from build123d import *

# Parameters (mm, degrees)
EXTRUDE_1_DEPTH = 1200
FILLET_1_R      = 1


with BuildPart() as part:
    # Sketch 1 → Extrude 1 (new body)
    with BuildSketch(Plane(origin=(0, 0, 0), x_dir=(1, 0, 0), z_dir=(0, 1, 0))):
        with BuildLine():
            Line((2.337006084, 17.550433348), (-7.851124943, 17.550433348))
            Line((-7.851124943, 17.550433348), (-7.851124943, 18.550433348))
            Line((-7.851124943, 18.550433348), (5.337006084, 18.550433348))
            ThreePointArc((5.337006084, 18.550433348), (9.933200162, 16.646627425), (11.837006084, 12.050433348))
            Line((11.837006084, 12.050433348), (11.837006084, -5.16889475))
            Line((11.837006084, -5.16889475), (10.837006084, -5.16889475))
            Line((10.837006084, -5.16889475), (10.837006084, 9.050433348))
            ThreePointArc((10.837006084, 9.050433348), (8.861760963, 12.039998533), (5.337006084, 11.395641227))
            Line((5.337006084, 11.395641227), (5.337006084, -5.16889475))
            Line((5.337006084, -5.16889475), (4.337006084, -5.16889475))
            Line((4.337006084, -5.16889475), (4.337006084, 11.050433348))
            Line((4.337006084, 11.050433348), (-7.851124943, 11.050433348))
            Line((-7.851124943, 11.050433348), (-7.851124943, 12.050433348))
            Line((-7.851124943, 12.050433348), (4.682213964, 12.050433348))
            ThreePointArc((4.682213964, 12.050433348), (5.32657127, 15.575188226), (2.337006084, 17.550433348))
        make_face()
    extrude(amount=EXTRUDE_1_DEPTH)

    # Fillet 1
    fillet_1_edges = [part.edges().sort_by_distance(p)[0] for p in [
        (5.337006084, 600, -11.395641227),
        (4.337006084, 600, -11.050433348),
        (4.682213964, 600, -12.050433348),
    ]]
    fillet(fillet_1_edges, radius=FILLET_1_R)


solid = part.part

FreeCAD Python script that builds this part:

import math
import FreeCAD as App
import Part
import Sketcher

V = App.Vector
Q = App.Units.Quantity


def edges_at(feature, points):
    """Names of the edges that pass closest to the given points."""
    edges = feature.Shape.Edges
    near = lambda p: min(range(len(edges)), key=lambda i: edges[i].distToShape(Part.Vertex(*p))[0])
    return sorted({f"Edge{near(p) + 1}" for p in points})

doc = App.newDocument("Part")
body = doc.addObject("PartDesign::Body", "Body")

sketch1 = body.newObject("Sketcher::SketchObject", "Sketch")
sketch1.AttachmentSupport = (doc.getObject("XZ_Plane"), [""])
sketch1.MapMode = "FlatFace"
sketch1.addGeometry(Part.LineSegment(V(-7.9, -17.6, 0), V(2.3, -17.6, 0)), False)
sketch1.addGeometry(Part.ArcOfCircle(Part.Circle(V(2.3, -14.3, 0), V(0, 0, 1), 3.2), math.radians(-90), math.radians(44)), False)
sketch1.addGeometry(Part.LineSegment(V(4.7, -12.1, 0), V(-7.9, -12.1, 0)), False)
sketch1.addGeometry(Part.LineSegment(V(-7.9, -12.1, 0), V(-7.9, -11.1, 0)), False)
sketch1.addGeometry(Part.LineSegment(V(-7.9, -11.1, 0), V(4.3, -11.1, 0)), False)
sketch1.addGeometry(Part.LineSegment(V(4.3, -11.1, 0), V(4.3, 5.2, 0)), False)
sketch1.addGeometry(Part.LineSegment(V(4.3, 5.2, 0), V(5.3, 5.2, 0)), False)
sketch1.addGeometry(Part.LineSegment(V(5.3, 5.2, 0), V(5.3, -11.4, 0)), False)
sketch1.addGeometry(Part.ArcOfCircle(Part.Circle(V(7.6, -9.1, 0), V(0, 0, 1), 3.2), math.radians(-134), math.radians(0)), False)
sketch1.addGeometry(Part.LineSegment(V(10.8, -9.1, 0), V(10.8, 5.2, 0)), False)
sketch1.addGeometry(Part.LineSegment(V(10.8, 5.2, 0), V(11.8, 5.2, 0)), False)
sketch1.addGeometry(Part.LineSegment(V(11.8, 5.2, 0), V(11.8, -12.1, 0)), False)
sketch1.addGeometry(Part.ArcOfCircle(Part.Circle(V(5.3, -12.1, 0), V(0, 0, 1), 6.5), math.radians(-90), math.radians(0)), False)
sketch1.addGeometry(Part.LineSegment(V(5.3, -18.6, 0), V(-7.9, -18.6, 0)), False)
sketch1.addGeometry(Part.LineSegment(V(-7.9, -18.6, 0), V(-7.9, -17.6, 0)), False)
sketch1.addConstraint(Sketcher.Constraint("Tangent", 0, 2, 1, 1))
sketch1.addConstraint(Sketcher.Constraint("Coincident", 1, 2, 2, 1))
sketch1.addConstraint(Sketcher.Constraint("Coincident", 2, 2, 3, 1))
sketch1.addConstraint(Sketcher.Constraint("Coincident", 3, 2, 4, 1))
sketch1.addConstraint(Sketcher.Constraint("Coincident", 4, 2, 5, 1))
sketch1.addConstraint(Sketcher.Constraint("Coincident", 5, 2, 6, 1))
sketch1.addConstraint(Sketcher.Constraint("Coincident", 6, 2, 7, 1))
sketch1.addConstraint(Sketcher.Constraint("Coincident", 7, 2, 8, 1))
sketch1.addConstraint(Sketcher.Constraint("Tangent", 8, 2, 9, 1))
sketch1.addConstraint(Sketcher.Constraint("Coincident", 9, 2, 10, 1))
sketch1.addConstraint(Sketcher.Constraint("Coincident", 10, 2, 11, 1))
sketch1.addConstraint(Sketcher.Constraint("Tangent", 11, 2, 12, 2))
sketch1.addConstraint(Sketcher.Constraint("Tangent", 12, 1, 13, 1))
sketch1.addConstraint(Sketcher.Constraint("Coincident", 13, 2, 14, 1))
sketch1.addConstraint(Sketcher.Constraint("Coincident", 14, 2, 0, 1))
sketch1.addConstraint(Sketcher.Constraint("Horizontal", 0))
sketch1.addConstraint(Sketcher.Constraint("Horizontal", 2))
sketch1.addConstraint(Sketcher.Constraint("Vertical", 3))
sketch1.addConstraint(Sketcher.Constraint("Horizontal", 4))
sketch1.addConstraint(Sketcher.Constraint("Vertical", 5))
sketch1.addConstraint(Sketcher.Constraint("Horizontal", 6))
sketch1.addConstraint(Sketcher.Constraint("Vertical", 7))
sketch1.addConstraint(Sketcher.Constraint("Vertical", 9))
sketch1.addConstraint(Sketcher.Constraint("Horizontal", 10))
sketch1.addConstraint(Sketcher.Constraint("Vertical", 11))
sketch1.addConstraint(Sketcher.Constraint("Horizontal", 13))
sketch1.addConstraint(Sketcher.Constraint("Vertical", 14))
sketch1.addConstraint(Sketcher.Constraint("Equal", 1, 8))
sketch1.addConstraint(Sketcher.Constraint("Horizontal", 12, 3, 1, 2))
sketch1.addConstraint(Sketcher.Constraint("Horizontal", 6, 2, 9, 2))
sketch1.addConstraint(Sketcher.Constraint("Vertical", 12, 3, 6, 2))
sketch1.addConstraint(Sketcher.Constraint("Vertical", 3, 2, 13, 2))
sketch1.addConstraint(Sketcher.Constraint("Equal", 6, 10))
sketch1.addConstraint(Sketcher.Constraint("Equal", 10, 3))
sketch1.addConstraint(Sketcher.Constraint("Equal", 3, 14))
sketch1.addConstraint(Sketcher.Constraint("Radius", 12, Q("6.5 mm")))
sketch1.addConstraint(Sketcher.Constraint("DistanceX", 6, 1, 6, 2, Q("1 mm")))
sketch1.addConstraint(Sketcher.Constraint("Radius", 1, Q("3.25 mm")))
sketch1.addConstraint(Sketcher.Constraint("DistanceY", 12, 3, 8, 3, Q("3 mm")))
sketch1.addConstraint(Sketcher.Constraint("DistanceX", 1, 3, 12, 3, Q("3 mm")))
sketch1.addConstraint(Sketcher.Constraint("DistanceX", 0, 1, 0, 2, Q("10.188131 mm")))
sketch1.addConstraint(Sketcher.Constraint("DistanceY", 5, 1, 5, 2, Q("16.219328 mm")))
sketch1.addConstraint(Sketcher.Constraint("DistanceY", 7, 2, -1, 1, Q("11.395641 mm")))
sketch1.addConstraint(Sketcher.Constraint("DistanceX", -1, 1, 1, 3, Q("2.337006 mm")))
pad1 = body.newObject("PartDesign::Pad", "Pad")
pad1.Profile = sketch1
pad1.Length = 1200
pad1.Reversed = True
doc.recompute()

fillet = body.newObject("PartDesign::Fillet", "Fillet")
fillet.Base = (pad1, edges_at(pad1, [(5.337, 600, -11.396), (4.337, 600, -11.05), (4.682, 600, -12.05)]))
fillet.Radius = 1

doc.recompute()
